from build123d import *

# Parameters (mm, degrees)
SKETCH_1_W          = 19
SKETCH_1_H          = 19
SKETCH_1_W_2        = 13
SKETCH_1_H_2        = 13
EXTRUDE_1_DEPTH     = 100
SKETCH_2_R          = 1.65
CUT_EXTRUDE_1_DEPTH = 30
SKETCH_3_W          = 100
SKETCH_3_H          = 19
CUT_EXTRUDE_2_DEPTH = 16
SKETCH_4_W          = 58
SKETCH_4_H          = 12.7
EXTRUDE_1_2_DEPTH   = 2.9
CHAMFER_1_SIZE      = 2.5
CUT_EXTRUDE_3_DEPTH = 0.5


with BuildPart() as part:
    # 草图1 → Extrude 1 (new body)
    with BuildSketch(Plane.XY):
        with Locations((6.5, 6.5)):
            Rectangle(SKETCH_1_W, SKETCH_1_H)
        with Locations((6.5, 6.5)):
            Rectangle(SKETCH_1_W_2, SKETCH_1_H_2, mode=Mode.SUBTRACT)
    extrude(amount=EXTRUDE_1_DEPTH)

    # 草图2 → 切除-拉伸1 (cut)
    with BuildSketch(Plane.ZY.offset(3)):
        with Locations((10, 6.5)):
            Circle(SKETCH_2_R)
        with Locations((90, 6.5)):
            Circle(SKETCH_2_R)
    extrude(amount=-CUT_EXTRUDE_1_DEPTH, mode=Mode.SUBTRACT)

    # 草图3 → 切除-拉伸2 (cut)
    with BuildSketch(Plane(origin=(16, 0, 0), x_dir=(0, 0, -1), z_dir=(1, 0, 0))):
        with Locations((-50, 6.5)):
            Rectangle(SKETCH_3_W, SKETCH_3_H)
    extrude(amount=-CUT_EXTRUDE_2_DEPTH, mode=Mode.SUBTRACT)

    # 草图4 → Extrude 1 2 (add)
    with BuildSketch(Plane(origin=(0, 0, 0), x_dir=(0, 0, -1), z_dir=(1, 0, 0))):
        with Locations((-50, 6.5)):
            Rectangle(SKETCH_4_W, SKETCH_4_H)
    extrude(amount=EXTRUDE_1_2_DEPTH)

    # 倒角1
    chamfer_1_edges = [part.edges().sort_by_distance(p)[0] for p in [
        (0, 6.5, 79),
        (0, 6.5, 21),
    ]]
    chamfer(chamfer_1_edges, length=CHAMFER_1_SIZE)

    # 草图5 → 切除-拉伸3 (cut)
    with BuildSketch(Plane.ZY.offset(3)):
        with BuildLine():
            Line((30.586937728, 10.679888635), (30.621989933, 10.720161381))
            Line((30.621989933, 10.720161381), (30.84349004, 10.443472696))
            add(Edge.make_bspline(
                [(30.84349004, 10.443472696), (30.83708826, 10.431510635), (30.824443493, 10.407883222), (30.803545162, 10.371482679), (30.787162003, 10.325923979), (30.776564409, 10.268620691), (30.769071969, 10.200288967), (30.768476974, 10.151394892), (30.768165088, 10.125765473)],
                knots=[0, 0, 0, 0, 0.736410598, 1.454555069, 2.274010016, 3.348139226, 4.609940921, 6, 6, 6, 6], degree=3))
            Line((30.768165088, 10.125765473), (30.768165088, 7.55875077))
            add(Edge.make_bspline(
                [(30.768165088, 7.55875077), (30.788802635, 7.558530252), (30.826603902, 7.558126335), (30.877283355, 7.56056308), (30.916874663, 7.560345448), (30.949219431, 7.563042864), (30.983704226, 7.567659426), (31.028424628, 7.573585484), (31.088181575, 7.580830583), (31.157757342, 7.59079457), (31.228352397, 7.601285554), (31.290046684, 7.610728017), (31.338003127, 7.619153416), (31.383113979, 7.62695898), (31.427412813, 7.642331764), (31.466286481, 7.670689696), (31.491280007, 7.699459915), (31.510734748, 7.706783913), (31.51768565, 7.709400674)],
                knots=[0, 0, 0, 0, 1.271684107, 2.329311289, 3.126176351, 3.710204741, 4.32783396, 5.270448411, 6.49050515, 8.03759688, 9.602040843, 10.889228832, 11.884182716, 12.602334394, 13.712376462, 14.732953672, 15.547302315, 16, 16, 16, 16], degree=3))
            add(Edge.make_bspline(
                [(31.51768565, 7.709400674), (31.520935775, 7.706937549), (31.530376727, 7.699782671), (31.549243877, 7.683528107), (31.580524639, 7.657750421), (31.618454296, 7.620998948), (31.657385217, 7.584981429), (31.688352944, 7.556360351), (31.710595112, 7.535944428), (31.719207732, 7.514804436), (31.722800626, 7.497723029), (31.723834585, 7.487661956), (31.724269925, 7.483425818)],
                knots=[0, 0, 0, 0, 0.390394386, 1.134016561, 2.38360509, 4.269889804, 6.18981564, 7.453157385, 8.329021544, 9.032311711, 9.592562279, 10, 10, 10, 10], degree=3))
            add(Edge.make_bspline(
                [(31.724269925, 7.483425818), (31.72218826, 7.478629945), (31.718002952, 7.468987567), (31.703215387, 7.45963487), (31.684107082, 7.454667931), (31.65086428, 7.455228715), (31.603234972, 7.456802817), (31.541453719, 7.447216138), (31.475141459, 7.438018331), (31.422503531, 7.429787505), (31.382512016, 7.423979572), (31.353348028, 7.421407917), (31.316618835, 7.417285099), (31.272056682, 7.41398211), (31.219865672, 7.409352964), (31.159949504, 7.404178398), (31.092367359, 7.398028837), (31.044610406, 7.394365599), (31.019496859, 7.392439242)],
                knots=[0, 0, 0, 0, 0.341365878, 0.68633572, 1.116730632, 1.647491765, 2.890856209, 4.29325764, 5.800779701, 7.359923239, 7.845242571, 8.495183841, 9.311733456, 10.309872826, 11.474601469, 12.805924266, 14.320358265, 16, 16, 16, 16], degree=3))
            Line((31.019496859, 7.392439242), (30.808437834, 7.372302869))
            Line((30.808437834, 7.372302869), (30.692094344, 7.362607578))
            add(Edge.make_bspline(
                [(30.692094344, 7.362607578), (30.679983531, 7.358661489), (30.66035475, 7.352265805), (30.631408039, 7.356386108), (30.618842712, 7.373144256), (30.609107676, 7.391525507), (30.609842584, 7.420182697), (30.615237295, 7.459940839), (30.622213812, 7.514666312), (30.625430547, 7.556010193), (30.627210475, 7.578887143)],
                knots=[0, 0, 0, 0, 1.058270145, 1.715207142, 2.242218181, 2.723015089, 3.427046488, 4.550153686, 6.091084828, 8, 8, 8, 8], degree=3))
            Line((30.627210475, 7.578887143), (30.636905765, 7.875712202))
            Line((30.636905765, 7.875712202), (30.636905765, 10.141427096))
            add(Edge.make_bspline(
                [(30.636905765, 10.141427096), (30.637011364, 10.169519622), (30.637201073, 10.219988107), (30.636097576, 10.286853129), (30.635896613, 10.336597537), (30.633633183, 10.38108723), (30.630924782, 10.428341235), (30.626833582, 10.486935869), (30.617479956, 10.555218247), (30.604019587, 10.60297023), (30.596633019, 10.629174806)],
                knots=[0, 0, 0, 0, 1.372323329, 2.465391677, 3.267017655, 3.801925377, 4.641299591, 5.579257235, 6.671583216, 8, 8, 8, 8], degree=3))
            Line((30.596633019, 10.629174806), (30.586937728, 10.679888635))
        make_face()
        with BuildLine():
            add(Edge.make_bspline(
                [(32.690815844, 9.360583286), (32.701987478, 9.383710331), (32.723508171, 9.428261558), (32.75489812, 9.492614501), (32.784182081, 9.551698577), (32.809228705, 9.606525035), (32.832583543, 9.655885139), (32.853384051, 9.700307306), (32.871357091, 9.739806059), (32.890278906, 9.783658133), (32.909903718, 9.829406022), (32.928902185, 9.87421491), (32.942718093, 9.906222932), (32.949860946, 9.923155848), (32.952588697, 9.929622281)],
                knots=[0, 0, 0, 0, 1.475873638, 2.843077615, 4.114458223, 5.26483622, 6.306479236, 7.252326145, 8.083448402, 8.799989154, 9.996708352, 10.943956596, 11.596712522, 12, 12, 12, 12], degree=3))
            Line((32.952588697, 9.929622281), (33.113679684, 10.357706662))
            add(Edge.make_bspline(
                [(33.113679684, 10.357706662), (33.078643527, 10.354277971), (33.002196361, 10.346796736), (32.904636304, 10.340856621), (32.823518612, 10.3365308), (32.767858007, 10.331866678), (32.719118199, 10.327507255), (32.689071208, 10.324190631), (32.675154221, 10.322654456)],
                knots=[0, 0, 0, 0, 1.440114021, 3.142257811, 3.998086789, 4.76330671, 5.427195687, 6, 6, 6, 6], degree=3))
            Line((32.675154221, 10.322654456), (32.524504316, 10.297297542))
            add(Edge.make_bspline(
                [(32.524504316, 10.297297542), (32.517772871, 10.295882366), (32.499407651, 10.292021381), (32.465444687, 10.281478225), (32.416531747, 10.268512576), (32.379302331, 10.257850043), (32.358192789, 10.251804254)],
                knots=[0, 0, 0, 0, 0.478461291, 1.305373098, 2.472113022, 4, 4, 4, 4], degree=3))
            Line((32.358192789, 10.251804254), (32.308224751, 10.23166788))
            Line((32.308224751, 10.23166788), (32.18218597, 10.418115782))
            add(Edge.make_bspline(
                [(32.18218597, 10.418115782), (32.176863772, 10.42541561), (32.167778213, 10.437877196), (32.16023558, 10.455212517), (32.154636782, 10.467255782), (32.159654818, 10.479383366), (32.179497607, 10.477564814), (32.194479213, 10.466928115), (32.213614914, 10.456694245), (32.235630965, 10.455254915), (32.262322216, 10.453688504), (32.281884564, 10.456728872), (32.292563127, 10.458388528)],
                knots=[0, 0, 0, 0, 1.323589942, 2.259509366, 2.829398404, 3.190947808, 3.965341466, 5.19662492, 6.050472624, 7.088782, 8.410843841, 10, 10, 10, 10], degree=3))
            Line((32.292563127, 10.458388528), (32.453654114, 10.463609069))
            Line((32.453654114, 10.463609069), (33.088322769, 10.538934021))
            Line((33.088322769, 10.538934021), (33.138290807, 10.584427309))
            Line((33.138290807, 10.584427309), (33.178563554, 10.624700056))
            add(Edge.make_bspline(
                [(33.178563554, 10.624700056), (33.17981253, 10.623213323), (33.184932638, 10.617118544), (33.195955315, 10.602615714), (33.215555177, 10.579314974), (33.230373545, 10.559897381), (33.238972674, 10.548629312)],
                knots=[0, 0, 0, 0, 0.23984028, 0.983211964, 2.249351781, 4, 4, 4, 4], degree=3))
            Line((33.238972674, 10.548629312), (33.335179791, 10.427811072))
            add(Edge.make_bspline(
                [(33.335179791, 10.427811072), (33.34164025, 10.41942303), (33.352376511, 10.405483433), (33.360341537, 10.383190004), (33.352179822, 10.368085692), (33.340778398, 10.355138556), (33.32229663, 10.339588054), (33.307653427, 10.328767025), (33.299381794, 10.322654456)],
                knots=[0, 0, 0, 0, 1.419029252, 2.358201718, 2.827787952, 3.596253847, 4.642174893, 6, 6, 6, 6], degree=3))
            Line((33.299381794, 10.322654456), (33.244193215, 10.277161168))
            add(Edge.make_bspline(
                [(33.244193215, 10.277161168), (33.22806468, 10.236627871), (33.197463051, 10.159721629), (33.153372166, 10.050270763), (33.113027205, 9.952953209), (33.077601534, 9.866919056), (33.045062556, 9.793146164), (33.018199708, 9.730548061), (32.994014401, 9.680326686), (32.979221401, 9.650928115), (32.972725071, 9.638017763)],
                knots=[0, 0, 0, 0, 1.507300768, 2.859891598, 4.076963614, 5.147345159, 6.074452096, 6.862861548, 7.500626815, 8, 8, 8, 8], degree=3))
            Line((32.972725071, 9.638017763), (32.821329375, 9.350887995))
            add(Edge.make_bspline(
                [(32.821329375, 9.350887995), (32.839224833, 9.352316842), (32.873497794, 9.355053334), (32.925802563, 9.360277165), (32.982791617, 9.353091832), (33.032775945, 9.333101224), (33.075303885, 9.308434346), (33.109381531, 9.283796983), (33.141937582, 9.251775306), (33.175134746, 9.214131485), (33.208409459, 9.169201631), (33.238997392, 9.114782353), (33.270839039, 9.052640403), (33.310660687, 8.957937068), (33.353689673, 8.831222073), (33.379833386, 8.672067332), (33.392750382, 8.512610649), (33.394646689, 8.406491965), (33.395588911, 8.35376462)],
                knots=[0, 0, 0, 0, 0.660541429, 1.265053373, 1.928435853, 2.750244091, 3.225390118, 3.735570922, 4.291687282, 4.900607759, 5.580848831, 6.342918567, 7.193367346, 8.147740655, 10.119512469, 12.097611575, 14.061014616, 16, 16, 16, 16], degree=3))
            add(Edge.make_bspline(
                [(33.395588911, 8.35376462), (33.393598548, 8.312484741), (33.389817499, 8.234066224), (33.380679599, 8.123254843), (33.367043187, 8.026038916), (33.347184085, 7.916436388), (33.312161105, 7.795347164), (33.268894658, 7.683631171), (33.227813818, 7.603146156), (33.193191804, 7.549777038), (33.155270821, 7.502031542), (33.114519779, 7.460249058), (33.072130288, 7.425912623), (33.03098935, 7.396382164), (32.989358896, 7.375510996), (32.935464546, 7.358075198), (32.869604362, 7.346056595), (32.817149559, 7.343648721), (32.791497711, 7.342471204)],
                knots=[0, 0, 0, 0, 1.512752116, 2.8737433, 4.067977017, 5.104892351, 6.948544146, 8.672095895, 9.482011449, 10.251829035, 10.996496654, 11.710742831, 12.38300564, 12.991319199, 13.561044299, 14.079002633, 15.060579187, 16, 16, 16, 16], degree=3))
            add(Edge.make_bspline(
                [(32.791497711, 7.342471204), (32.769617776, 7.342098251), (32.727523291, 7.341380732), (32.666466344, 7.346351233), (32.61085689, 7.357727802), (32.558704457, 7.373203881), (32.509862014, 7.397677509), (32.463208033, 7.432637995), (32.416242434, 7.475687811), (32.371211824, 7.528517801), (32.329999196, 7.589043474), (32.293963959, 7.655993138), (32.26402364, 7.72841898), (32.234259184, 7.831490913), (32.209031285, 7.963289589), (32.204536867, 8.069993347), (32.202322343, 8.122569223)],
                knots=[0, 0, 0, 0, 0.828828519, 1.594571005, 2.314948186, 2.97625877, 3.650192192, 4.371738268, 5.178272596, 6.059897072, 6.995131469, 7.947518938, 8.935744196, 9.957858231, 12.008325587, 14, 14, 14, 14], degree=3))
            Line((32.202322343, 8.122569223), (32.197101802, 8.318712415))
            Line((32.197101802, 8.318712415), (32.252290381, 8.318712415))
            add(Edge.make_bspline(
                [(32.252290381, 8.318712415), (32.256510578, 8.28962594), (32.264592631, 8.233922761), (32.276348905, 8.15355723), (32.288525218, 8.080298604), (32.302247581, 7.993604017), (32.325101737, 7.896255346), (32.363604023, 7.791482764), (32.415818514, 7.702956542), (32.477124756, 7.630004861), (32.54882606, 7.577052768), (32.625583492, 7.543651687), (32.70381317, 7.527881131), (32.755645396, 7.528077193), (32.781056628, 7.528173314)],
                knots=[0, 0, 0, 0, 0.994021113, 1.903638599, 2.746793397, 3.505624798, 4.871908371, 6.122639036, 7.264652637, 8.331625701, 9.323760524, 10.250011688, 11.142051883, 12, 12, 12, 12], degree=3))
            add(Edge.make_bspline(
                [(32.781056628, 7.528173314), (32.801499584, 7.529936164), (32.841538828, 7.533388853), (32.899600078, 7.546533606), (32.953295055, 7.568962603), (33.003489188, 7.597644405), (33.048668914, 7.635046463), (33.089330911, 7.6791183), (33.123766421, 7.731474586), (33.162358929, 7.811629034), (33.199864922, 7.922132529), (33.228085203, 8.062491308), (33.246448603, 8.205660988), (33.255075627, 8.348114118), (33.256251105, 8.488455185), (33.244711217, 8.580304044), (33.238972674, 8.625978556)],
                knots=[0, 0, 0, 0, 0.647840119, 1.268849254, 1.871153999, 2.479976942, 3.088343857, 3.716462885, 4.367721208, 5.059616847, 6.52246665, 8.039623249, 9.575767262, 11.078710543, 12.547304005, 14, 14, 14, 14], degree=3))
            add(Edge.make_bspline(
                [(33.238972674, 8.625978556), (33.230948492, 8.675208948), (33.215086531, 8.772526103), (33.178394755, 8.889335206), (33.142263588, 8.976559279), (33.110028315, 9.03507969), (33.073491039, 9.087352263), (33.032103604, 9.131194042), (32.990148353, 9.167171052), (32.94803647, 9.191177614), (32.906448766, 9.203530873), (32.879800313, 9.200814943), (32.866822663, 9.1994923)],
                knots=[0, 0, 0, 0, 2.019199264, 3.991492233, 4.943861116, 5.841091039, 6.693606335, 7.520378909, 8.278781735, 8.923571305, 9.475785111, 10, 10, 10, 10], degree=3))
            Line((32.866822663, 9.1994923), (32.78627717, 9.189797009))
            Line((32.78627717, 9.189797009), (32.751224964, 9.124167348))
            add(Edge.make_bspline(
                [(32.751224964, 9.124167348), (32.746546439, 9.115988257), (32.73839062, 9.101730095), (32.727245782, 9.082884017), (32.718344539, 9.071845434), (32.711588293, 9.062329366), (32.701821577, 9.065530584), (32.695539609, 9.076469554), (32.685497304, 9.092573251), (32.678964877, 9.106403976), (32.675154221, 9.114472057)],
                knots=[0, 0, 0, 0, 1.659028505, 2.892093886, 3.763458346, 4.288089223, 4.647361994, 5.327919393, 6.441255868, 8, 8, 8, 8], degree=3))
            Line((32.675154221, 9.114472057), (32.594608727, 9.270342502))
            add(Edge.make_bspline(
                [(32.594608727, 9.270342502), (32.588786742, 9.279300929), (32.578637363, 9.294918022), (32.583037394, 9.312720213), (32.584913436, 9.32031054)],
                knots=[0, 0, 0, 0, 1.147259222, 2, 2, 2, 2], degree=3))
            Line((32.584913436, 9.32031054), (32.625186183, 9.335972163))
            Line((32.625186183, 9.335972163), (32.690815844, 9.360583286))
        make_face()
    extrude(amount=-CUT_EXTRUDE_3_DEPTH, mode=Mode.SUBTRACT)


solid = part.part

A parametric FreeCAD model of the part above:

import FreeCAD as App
import Part
import Sketcher

V = App.Vector


def edges_at(feature, points):
    """Names of the edges that pass closest to the given points."""
    edges = feature.Shape.Edges
    near = lambda p: min(range(len(edges)), key=lambda i: edges[i].distToShape(Part.Vertex(*p))[0])
    return sorted({f"Edge{near(p) + 1}" for p in points})


def add_polygon(sketch, points):
    """Adds a closed chain of lines whose ends are joined by coincident constraints."""
    first, n = sketch.GeometryCount, len(points)
    for a, b in zip(points, points[1:] + points[:1]):
        sketch.addGeometry(Part.LineSegment(App.Vector(*a, 0), App.Vector(*b, 0)), False)
    for i in range(n):
        sketch.addConstraint(Sketcher.Constraint("Coincident", first + i, 2, first + (i + 1) % n, 1))

doc = App.newDocument("Part")
params = doc.addObject("Spreadsheet::Sheet", "Params")
for row, (alias, value) in enumerate([
    ("sketch1_width", "19 mm"),
    ("sketch1_width2", "13 mm"),
    ("pad1_length", "100 mm"),
    ("sketch2_diameter", "3.3 mm"),
    ("pocket1_length", "30 mm"),
    ("sketch3_width", "19 mm"),
    ("sketch3_height", "100 mm"),
    ("pocket2_length", "16 mm"),
    ("sketch4_height", "58 mm"),
    ("sketch4_width", "12.7 mm"),
    ("pad2_length", "2.9 mm"),
    ("chamfer_size", "2.5 mm"),
    ("pocket3_length", "0.5 mm"),
], start=1):
    params.set(f"A{row}", alias)
    params.set(f"B{row}", "=" + value)
    params.setAlias(f"B{row}", alias)

body = doc.addObject("PartDesign::Body", "Body")

# Sketch on XY plane
sketch1 = body.newObject("Sketcher::SketchObject", "Sketch")
sketch1.AttachmentSupport = (doc.getObject("XY_Plane"), [""])
sketch1.MapMode = "FlatFace"
add_polygon(sketch1, [(-3, 16), (-3, -3), (16, -3), (16, 16)])  # lines 0-3
add_polygon(sketch1, [(13, 0), (0, 0), (0, 13), (13, 13)])  # lines 4-7
sketch1.addConstraint(Sketcher.Constraint("Vertical", 0))
sketch1.addConstraint(Sketcher.Constraint("Horizontal", 1))
sketch1.addConstraint(Sketcher.Constraint("Vertical", 2))
sketch1.addConstraint(Sketcher.Constraint("Horizontal", 3))
sketch1.addConstraint(Sketcher.Constraint("Horizontal", 4))
sketch1.addConstraint(Sketcher.Constraint("Vertical", 5))
sketch1.addConstraint(Sketcher.Constraint("Horizontal", 6))
sketch1.addConstraint(Sketcher.Constraint("Vertical", 7))
sketch1.addConstraint(Sketcher.Constraint("Coincident", 4, 2, -1, 1))
sketch1.addConstraint(Sketcher.Constraint("Equal", 3, 0))
sketch1.addConstraint(Sketcher.Constraint("Equal", 6, 5))
sketch1.addConstraint(Sketcher.Constraint("DistanceX", 1, 1, 1, 2, 19.0))
sketch1.addConstraint(Sketcher.Constraint("DistanceX", 4, 2, 4, 1, 13.0))
sketch1.addConstraint(Sketcher.Constraint("DistanceX", 0, 2, -1, 1, 3.0))
sketch1.addConstraint(Sketcher.Constraint("DistanceY", 0, 2, -1, 1, 3.0))
sketch1.setExpression("Constraints[19]", "Params.sketch1_width")
sketch1.setExpression("Constraints[20]", "Params.sketch1_width2")
pad1 = body.newObject("PartDesign::Pad", "Pad")
pad1.Profile = sketch1
pad1.setExpression("Length", "Params.pad1_length")

# Sketch on YZ plane
sketch2 = body.newObject("Sketcher::SketchObject", "Sketch001")
sketch2.AttachmentSupport = (doc.getObject("YZ_Plane"), [""])
sketch2.MapMode = "FlatFace"
sketch2.AttachmentOffset = App.Placement(V(0, 0, -3), App.Rotation())
sketch2.addGeometry(Part.Circle(V(6.5, 10, 0), V(0, 0, 1), 1.6), False)
sketch2.addGeometry(Part.Circle(V(6.5, 90, 0), V(0, 0, 1), 1.6), False)
sketch2.addConstraint(Sketcher.Constraint("Equal", 0, 1))
sketch2.addConstraint(Sketcher.Constraint("Vertical", 0, 3, 1, 3))
sketch2.addConstraint(Sketcher.Constraint("Diameter", 0, 3.3))
sketch2.addConstraint(Sketcher.Constraint("DistanceY", -1, 1, 0, 3, 10.0))
sketch2.addConstraint(Sketcher.Constraint("DistanceY", -1, 1, 1, 3, 90.0))
sketch2.addConstraint(Sketcher.Constraint("DistanceX", -1, 1, 0, 3, 6.5))
sketch2.setExpression("Constraints[2]", "Params.sketch2_diameter")
pocket1 = body.newObject("PartDesign::Pocket", "Pocket")
pocket1.Profile = sketch2
pocket1.setExpression("Length", "Params.pocket1_length")
pocket1.Reversed = True

# Sketch on YZ plane
sketch3 = body.newObject("Sketcher::SketchObject", "Sketch002")
sketch3.AttachmentSupport = (doc.getObject("YZ_Plane"), [""])
sketch3.MapMode = "FlatFace"
sketch3.AttachmentOffset = App.Placement(V(0, 0, 16), App.Rotation())
add_polygon(sketch3, [(16, 100), (-3, 100), (-3, 0), (16, 0)])  # lines 0-3
sketch3.addConstraint(Sketcher.Constraint("Horizontal", 0))
sketch3.addConstraint(Sketcher.Constraint("Vertical", 1))
sketch3.addConstraint(Sketcher.Constraint("Horizontal", 2))
sketch3.addConstraint(Sketcher.Constraint("Vertical", 3))
sketch3.addConstraint(Sketcher.Constraint("PointOnObject", 1, 2, -1))
sketch3.addConstraint(Sketcher.Constraint("DistanceX", 0, 2, 0, 1, 19.0))
sketch3.addConstraint(Sketcher.Constraint("DistanceY", 1, 2, 1, 1, 100.0))
sketch3.addConstraint(Sketcher.Constraint("DistanceX", 0, 2, -1, 1, 3.0))
sketch3.setExpression("Constraints[9]", "Params.sketch3_width")
sketch3.setExpression("Constraints[10]", "Params.sketch3_height")
pocket2 = body.newObject("PartDesign::Pocket", "Pocket001")
pocket2.Profile = sketch3
pocket2.setExpression("Length", "Params.pocket2_length")

# Sketch on YZ plane
sketch4 = body.newObject("Sketcher::SketchObject", "Sketch003")
sketch4.AttachmentSupport = (doc.getObject("YZ_Plane"), [""])
sketch4.MapMode = "FlatFace"
add_polygon(sketch4, [(13, 79), (0, 79), (0, 21), (13, 21)])  # lines 0-3
sketch4.addConstraint(Sketcher.Constraint("Horizontal", 0))
sketch4.addConstraint(Sketcher.Constraint("Vertical", 1))
sketch4.addConstraint(Sketcher.Constraint("Horizontal", 2))
sketch4.addConstraint(Sketcher.Constraint("Vertical", 3))
sketch4.addConstraint(Sketcher.Constraint("DistanceY", 1, 2, 1, 1, 58.0))
sketch4.addConstraint(Sketcher.Constraint("DistanceX", 0, 2, 0, 1, 12.7))
sketch4.addConstraint(Sketcher.Constraint("DistanceY", -1, 1, 0, 2, 79.0))
sketch4.addConstraint(Sketcher.Constraint("DistanceX", -1, 1, 0, 2, 0.15))
sketch4.setExpression("Constraints[8]", "Params.sketch4_height")
sketch4.setExpression("Constraints[9]", "Params.sketch4_width")
pad2 = body.newObject("PartDesign::Pad", "Pad001")
pad2.Profile = sketch4
pad2.setExpression("Length", "Params.pad2_length")
doc.recompute()

chamfer = body.newObject("PartDesign::Chamfer", "Chamfer")
chamfer.Base = (pad2, edges_at(pad2, [(0, 6.5, 79), (0, 6.5, 21)]))
chamfer.setExpression("Size", "Params.chamfer_size")

# Sketch on YZ plane
sketch5 = body.newObject("Sketcher::SketchObject", "Sketch004")
sketch5.AttachmentSupport = (doc.getObject("YZ_Plane"), [""])
sketch5.MapMode = "FlatFace"
sketch5.AttachmentOffset = App.Placement(V(0, 0, -3), App.Rotation())
sketch5.addGeometry(Part.LineSegment(V(10.720161, 30.62199, 0), V(10.679889, 30.586938, 0)), False)
sketch5.addGeometry(Part.LineSegment(V(10.679889, 30.586938, 0), V(10.629175, 30.596633, 0)), False)
sketch5.addGeometry(Part.BSplineCurve([V(10.141427, 30.636906, 0), V(10.16952, 30.637011, 0), V(10.219988, 30.637201, 0), V(10.286853, 30.636098, 0), V(10.336598, 30.635897, 0), V(10.381087, 30.633633, 0), V(10.428341, 30.630925, 0), V(10.486936, 30.626834, 0), V(10.555218, 30.61748, 0), V(10.60297, 30.60402, 0), V(10.629175, 30.596633, 0)], [4, 1, 1, 1, 1, 1, 1, 1, 4], [0, 1.372323329, 2.465391677, 3.267017655, 3.801925377, 4.641299591, 5.579257235, 6.671583216, 8], False, 3, [1, 1, 1, 1, 1, 1, 1, 1, 1, 1, 1], False), False)
sketch5.addGeometry(Part.LineSegment(V(10.141427, 30.636906, 0), V(7.875712, 30.636906, 0)), False)
sketch5.addGeometry(Part.LineSegment(V(7.875712, 30.636906, 0), V(7.578887, 30.62721, 0)), False)
sketch5.addGeometry(Part.BSplineCurve([V(7.362608, 30.692094, 0), V(7.358661, 30.679984, 0), V(7.352266, 30.660355, 0), V(7.356386, 30.631408, 0), V(7.373144, 30.618843, 0), V(7.391526, 30.609108, 0), V(7.420183, 30.609843, 0), V(7.459941, 30.615237, 0), V(7.514666, 30.622214, 0), V(7.55601, 30.625431, 0), V(7.578887, 30.62721, 0)], [4, 1, 1, 1, 1, 1, 1, 1, 4], [0, 1.058270145, 1.715207142, 2.242218181, 2.723015089, 3.427046488, 4.550153686, 6.091084828, 8], False, 3, [1, 1, 1, 1, 1, 1, 1, 1, 1, 1, 1], False), False)
sketch5.addGeometry(Part.LineSegment(V(7.362608, 30.692094, 0), V(7.372303, 30.808438, 0)), False)
sketch5.addGeometry(Part.LineSegment(V(7.372303, 30.808438, 0), V(7.392439, 31.019497, 0)), False)
sketch5.addGeometry(Part.BSplineCurve([V(7.483426, 31.72427, 0), V(7.47863, 31.722188, 0), V(7.468988, 31.718003, 0), V(7.459635, 31.703215, 0), V(7.454668, 31.684107, 0), V(7.455229, 31.650864, 0), V(7.456803, 31.603235, 0), V(7.447216, 31.541454, 0), V(7.438018, 31.475141, 0), V(7.429788, 31.422504, 0), V(7.42398, 31.382512, 0), V(7.421408, 31.353348, 0), V(7.417285, 31.316619, 0), V(7.413982, 31.272057, 0), V(7.409353, 31.219866, 0), V(7.404178, 31.15995, 0), V(7.398029, 31.092367, 0), V(7.394366, 31.04461, 0), V(7.392439, 31.019497, 0)], [4, 1, 1, 1, 1, 1, 1, 1, 1, 1, 1, 1, 1, 1, 1, 1, 4], [0, 0.341365878, 0.68633572, 1.116730632, 1.647491765, 2.890856209, 4.29325764, 5.800779701, 7.359923239, 7.845242571, 8.495183841, 9.311733456, 10.309872826, 11.474601469, 12.805924266, 14.320358265, 16], False, 3, [1, 1, 1, 1, 1, 1, 1, 1, 1, 1, 1, 1, 1, 1, 1, 1, 1, 1, 1], False), False)
sketch5.addGeometry(Part.BSplineCurve([V(7.709401, 31.517686, 0), V(7.706938, 31.520936, 0), V(7.699783, 31.530377, 0), V(7.683528, 31.549244, 0), V(7.65775, 31.580525, 0), V(7.620999, 31.618454, 0), V(7.584981, 31.657385, 0), V(7.55636, 31.688353, 0), V(7.535944, 31.710595, 0), V(7.514804, 31.719208, 0), V(7.497723, 31.722801, 0), V(7.487662, 31.723835, 0), V(7.483426, 31.72427, 0)], [4, 1, 1, 1, 1, 1, 1, 1, 1, 1, 4], [0, 0.390394386, 1.134016561, 2.38360509, 4.269889804, 6.18981564, 7.453157385, 8.329021544, 9.032311711, 9.592562279, 10], False, 3, [1, 1, 1, 1, 1, 1, 1, 1, 1, 1, 1, 1, 1], False), False)
sketch5.addGeometry(Part.BSplineCurve([V(7.558751, 30.768165, 0), V(7.55853, 30.788803, 0), V(7.558126, 30.826604, 0), V(7.560563, 30.877283, 0), V(7.560345, 30.916875, 0), V(7.563043, 30.949219, 0), V(7.567659, 30.983704, 0), V(7.573585, 31.028425, 0), V(7.580831, 31.088182, 0), V(7.590795, 31.157757, 0), V(7.601286, 31.228352, 0), V(7.610728, 31.290047, 0), V(7.619153, 31.338003, 0), V(7.626959, 31.383114, 0), V(7.642332, 31.427413, 0), V(7.67069, 31.466286, 0), V(7.69946, 31.49128, 0), V(7.706784, 31.510735, 0), V(7.709401, 31.517686, 0)], [4, 1, 1, 1, 1, 1, 1, 1, 1, 1, 1, 1, 1, 1, 1, 1, 4], [0, 1.271684107, 2.329311289, 3.126176351, 3.710204741, 4.32783396, 5.270448411, 6.49050515, 8.03759688, 9.602040843, 10.889228832, 11.884182716, 12.602334394, 13.712376462, 14.732953672, 15.547302315, 16], False, 3, [1, 1, 1, 1, 1, 1, 1, 1, 1, 1, 1, 1, 1, 1, 1, 1, 1, 1, 1], False), False)
sketch5.addGeometry(Part.LineSegment(V(7.558751, 30.768165, 0), V(10.125765, 30.768165, 0)), False)
sketch5.addGeometry(Part.BSplineCurve([V(10.443473, 30.84349, 0), V(10.431511, 30.837088, 0), V(10.407883, 30.824443, 0), V(10.371483, 30.803545, 0), V(10.325924, 30.787162, 0), V(10.268621, 30.776564, 0), V(10.200289, 30.769072, 0), V(10.151395, 30.768477, 0), V(10.125765, 30.768165, 0)], [4, 1, 1, 1, 1, 1, 4], [0, 0.736410598, 1.454555069, 2.274010016, 3.348139226, 4.609940921, 6], False, 3, [1, 1, 1, 1, 1, 1, 1, 1, 1], False), False)
sketch5.addGeometry(Part.LineSegment(V(10.443473, 30.84349, 0), V(10.720161, 30.62199, 0)), False)
sketch5.addGeometry(Part.BSplineCurve([V(9.360583, 32.690816, 0), V(9.38371, 32.701987, 0), V(9.428262, 32.723508, 0), V(9.492615, 32.754898, 0), V(9.551699, 32.784182, 0), V(9.606525, 32.809229, 0), V(9.655885, 32.832584, 0), V(9.700307, 32.853384, 0), V(9.739806, 32.871357, 0), V(9.783658, 32.890279, 0), V(9.829406, 32.909904, 0), V(9.874215, 32.928902, 0), V(9.906223, 32.942718, 0), V(9.923156, 32.949861, 0), V(9.929622, 32.952589, 0)], [4, 1, 1, 1, 1, 1, 1, 1, 1, 1, 1, 1, 4], [0, 1.475873638, 2.843077615, 4.114458223, 5.26483622, 6.306479236, 7.252326145, 8.083448402, 8.799989154, 9.996708352, 10.943956596, 11.596712522, 12], False, 3, [1, 1, 1, 1, 1, 1, 1, 1, 1, 1, 1, 1, 1, 1, 1], False), False)
sketch5.addGeometry(Part.LineSegment(V(9.360583, 32.690816, 0), V(9.335972, 32.625186, 0)), False)
sketch5.addGeometry(Part.LineSegment(V(9.335972, 32.625186, 0), V(9.320311, 32.584913, 0)), False)
sketch5.addGeometry(Part.BSplineCurve([V(9.270343, 32.594609, 0), V(9.279301, 32.588787, 0), V(9.294918, 32.578637, 0), V(9.31272, 32.583037, 0), V(9.320311, 32.584913, 0)], [4, 1, 4], [0, 1.147259222, 2], False, 3, [1, 1, 1, 1, 1], False), False)
sketch5.addGeometry(Part.LineSegment(V(9.270343, 32.594609, 0), V(9.114472, 32.675154, 0)), False)
sketch5.addGeometry(Part.BSplineCurve([V(9.124167, 32.751225, 0), V(9.115988, 32.746546, 0), V(9.10173, 32.738391, 0), V(9.082884, 32.727246, 0), V(9.071845, 32.718345, 0), V(9.062329, 32.711588, 0), V(9.065531, 32.701822, 0), V(9.07647, 32.69554, 0), V(9.092573, 32.685497, 0), V(9.106404, 32.678965, 0), V(9.114472, 32.675154, 0)], [4, 1, 1, 1, 1, 1, 1, 1, 4], [0, 1.659028505, 2.892093886, 3.763458346, 4.288089223, 4.647361994, 5.327919393, 6.441255868, 8], False, 3, [1, 1, 1, 1, 1, 1, 1, 1, 1, 1, 1], False), False)
sketch5.addGeometry(Part.LineSegment(V(9.124167, 32.751225, 0), V(9.189797, 32.786277, 0)), False)
sketch5.addGeometry(Part.LineSegment(V(9.189797, 32.786277, 0), V(9.199492, 32.866823, 0)), False)
sketch5.addGeometry(Part.BSplineCurve([V(8.625979, 33.238973, 0), V(8.675209, 33.230948, 0), V(8.772526, 33.215087, 0), V(8.889335, 33.178395, 0), V(8.976559, 33.142264, 0), V(9.03508, 33.110028, 0), V(9.087352, 33.073491, 0), V(9.131194, 33.032104, 0), V(9.167171, 32.990148, 0), V(9.191178, 32.948036, 0), V(9.203531, 32.906449, 0), V(9.200815, 32.8798, 0), V(9.199492, 32.866823, 0)], [4, 1, 1, 1, 1, 1, 1, 1, 1, 1, 4], [0, 2.019199264, 3.991492233, 4.943861116, 5.841091039, 6.693606335, 7.520378909, 8.278781735, 8.923571305, 9.475785111, 10], False, 3, [1, 1, 1, 1, 1, 1, 1, 1, 1, 1, 1, 1, 1], False), False)
sketch5.addGeometry(Part.BSplineCurve([V(7.528173, 32.781057, 0), V(7.529936, 32.8015, 0), V(7.533389, 32.841539, 0), V(7.546534, 32.8996, 0), V(7.568963, 32.953295, 0), V(7.597644, 33.003489, 0), V(7.635046, 33.048669, 0), V(7.679118, 33.089331, 0), V(7.731475, 33.123766, 0), V(7.811629, 33.162359, 0), V(7.922133, 33.199865, 0), V(8.062491, 33.228085, 0), V(8.205661, 33.246449, 0), V(8.348114, 33.255076, 0), V(8.488455, 33.256251, 0), V(8.580304, 33.244711, 0), V(8.625979, 33.238973, 0)], [4, 1, 1, 1, 1, 1, 1, 1, 1, 1, 1, 1, 1, 1, 4], [0, 0.647840119, 1.268849254, 1.871153999, 2.479976942, 3.088343857, 3.716462885, 4.367721208, 5.059616847, 6.52246665, 8.039623249, 9.575767262, 11.078710543, 12.547304005, 14], False, 3, [1, 1, 1, 1, 1, 1, 1, 1, 1, 1, 1, 1, 1, 1, 1, 1, 1], False), False)
sketch5.addGeometry(Part.BSplineCurve([V(8.318712, 32.25229, 0), V(8.289626, 32.256511, 0), V(8.233923, 32.264593, 0), V(8.153557, 32.276349, 0), V(8.080299, 32.288525, 0), V(7.993604, 32.302248, 0), V(7.896255, 32.325102, 0), V(7.791483, 32.363604, 0), V(7.702957, 32.415819, 0), V(7.630005, 32.477125, 0), V(7.577053, 32.548826, 0), V(7.543652, 32.625583, 0), V(7.527881, 32.703813, 0), V(7.528077, 32.755645, 0), V(7.528173, 32.781057, 0)], [4, 1, 1, 1, 1, 1, 1, 1, 1, 1, 1, 1, 4], [0, 0.994021113, 1.903638599, 2.746793397, 3.505624798, 4.871908371, 6.122639036, 7.264652637, 8.331625701, 9.323760524, 10.250011688, 11.142051883, 12], False, 3, [1, 1, 1, 1, 1, 1, 1, 1, 1, 1, 1, 1, 1, 1, 1], False), False)
sketch5.addGeometry(Part.LineSegment(V(8.318712, 32.25229, 0), V(8.318712, 32.197102, 0)), False)
sketch5.addGeometry(Part.LineSegment(V(8.318712, 32.197102, 0), V(8.122569, 32.202322, 0)), False)
sketch5.addGeometry(Part.BSplineCurve([V(7.342471, 32.791498, 0), V(7.342098, 32.769618, 0), V(7.341381, 32.727523, 0), V(7.346351, 32.666466, 0), V(7.357728, 32.610857, 0), V(7.373204, 32.558704, 0), V(7.397678, 32.509862, 0), V(7.432638, 32.463208, 0), V(7.475688, 32.416242, 0), V(7.528518, 32.371212, 0), V(7.589043, 32.329999, 0), V(7.655993, 32.293964, 0), V(7.728419, 32.264024, 0), V(7.831491, 32.234259, 0), V(7.96329, 32.209031, 0), V(8.069993, 32.204537, 0), V(8.122569, 32.202322, 0)], [4, 1, 1, 1, 1, 1, 1, 1, 1, 1, 1, 1, 1, 1, 4], [0, 0.828828519, 1.594571005, 2.314948186, 2.97625877, 3.650192192, 4.371738268, 5.178272596, 6.059897072, 6.995131469, 7.947518938, 8.935744196, 9.957858231, 12.008325587, 14], False, 3, [1, 1, 1, 1, 1, 1, 1, 1, 1, 1, 1, 1, 1, 1, 1, 1, 1], False), False)
sketch5.addGeometry(Part.BSplineCurve([V(8.353765, 33.395589, 0), V(8.312485, 33.393599, 0), V(8.234066, 33.389817, 0), V(8.123255, 33.38068, 0), V(8.026039, 33.367043, 0), V(7.916436, 33.347184, 0), V(7.795347, 33.312161, 0), V(7.683631, 33.268895, 0), V(7.603146, 33.227814, 0), V(7.549777, 33.193192, 0), V(7.502032, 33.155271, 0), V(7.460249, 33.11452, 0), V(7.425913, 33.07213, 0), V(7.396382, 33.030989, 0), V(7.375511, 32.989359, 0), V(7.358075, 32.935465, 0), V(7.346057, 32.869604, 0), V(7.343649, 32.81715, 0), V(7.342471, 32.791498, 0)], [4, 1, 1, 1, 1, 1, 1, 1, 1, 1, 1, 1, 1, 1, 1, 1, 4], [0, 1.512752116, 2.8737433, 4.067977017, 5.104892351, 6.948544146, 8.672095895, 9.482011449, 10.251829035, 10.996496654, 11.710742831, 12.38300564, 12.991319199, 13.561044299, 14.079002633, 15.060579187, 16], False, 3, [1, 1, 1, 1, 1, 1, 1, 1, 1, 1, 1, 1, 1, 1, 1, 1, 1, 1, 1], False), False)
sketch5.addGeometry(Part.BSplineCurve([V(9.350888, 32.821329, 0), V(9.352317, 32.839225, 0), V(9.355053, 32.873498, 0), V(9.360277, 32.925803, 0), V(9.353092, 32.982792, 0), V(9.333101, 33.032776, 0), V(9.308434, 33.075304, 0), V(9.283797, 33.109382, 0), V(9.251775, 33.141938, 0), V(9.214131, 33.175135, 0), V(9.169202, 33.208409, 0), V(9.114782, 33.238997, 0), V(9.05264, 33.270839, 0), V(8.957937, 33.310661, 0), V(8.831222, 33.35369, 0), V(8.672067, 33.379833, 0), V(8.512611, 33.39275, 0), V(8.406492, 33.394647, 0), V(8.353765, 33.395589, 0)], [4, 1, 1, 1, 1, 1, 1, 1, 1, 1, 1, 1, 1, 1, 1, 1, 4], [0, 0.660541429, 1.265053373, 1.928435853, 2.750244091, 3.225390118, 3.735570922, 4.291687282, 4.900607759, 5.580848831, 6.342918567, 7.193367346, 8.147740655, 10.119512469, 12.097611575, 14.061014616, 16], False, 3, [1, 1, 1, 1, 1, 1, 1, 1, 1, 1, 1, 1, 1, 1, 1, 1, 1, 1, 1], False), False)
sketch5.addGeometry(Part.LineSegment(V(9.350888, 32.821329, 0), V(9.638018, 32.972725, 0)), False)
sketch5.addGeometry(Part.BSplineCurve([V(10.277161, 33.244193, 0), V(10.236628, 33.228065, 0), V(10.159722, 33.197463, 0), V(10.050271, 33.153372, 0), V(9.952953, 33.113027, 0), V(9.866919, 33.077602, 0), V(9.793146, 33.045063, 0), V(9.730548, 33.0182, 0), V(9.680327, 32.994014, 0), V(9.650928, 32.979221, 0), V(9.638018, 32.972725, 0)], [4, 1, 1, 1, 1, 1, 1, 1, 4], [0, 1.507300768, 2.859891598, 4.076963614, 5.147345159, 6.074452096, 6.862861548, 7.500626815, 8], False, 3, [1, 1, 1, 1, 1, 1, 1, 1, 1, 1, 1], False), False)
sketch5.addGeometry(Part.LineSegment(V(10.277161, 33.244193, 0), V(10.322654, 33.299382, 0)), False)
sketch5.addGeometry(Part.BSplineCurve([V(10.427811, 33.33518, 0), V(10.419423, 33.34164, 0), V(10.405483, 33.352377, 0), V(10.38319, 33.360342, 0), V(10.368086, 33.35218, 0), V(10.355139, 33.340778, 0), V(10.339588, 33.322297, 0), V(10.328767, 33.307653, 0), V(10.322654, 33.299382, 0)], [4, 1, 1, 1, 1, 1, 4], [0, 1.419029252, 2.358201718, 2.827787952, 3.596253847, 4.642174893, 6], False, 3, [1, 1, 1, 1, 1, 1, 1, 1, 1], False), False)
sketch5.addGeometry(Part.LineSegment(V(10.427811, 33.33518, 0), V(10.548629, 33.238973, 0)), False)
sketch5.addGeometry(Part.BSplineCurve([V(10.6247, 33.178564, 0), V(10.623213, 33.179813, 0), V(10.617119, 33.184933, 0), V(10.602616, 33.195955, 0), V(10.579315, 33.215555, 0), V(10.559897, 33.230374, 0), V(10.548629, 33.238973, 0)], [4, 1, 1, 1, 4], [0, 0.23984028, 0.983211964, 2.249351781, 4], False, 3, [1, 1, 1, 1, 1, 1, 1], False), False)
sketch5.addGeometry(Part.LineSegment(V(10.6247, 33.178564, 0), V(10.584427, 33.138291, 0)), False)
sketch5.addGeometry(Part.LineSegment(V(10.584427, 33.138291, 0), V(10.538934, 33.088323, 0)), False)
sketch5.addGeometry(Part.LineSegment(V(10.538934, 33.088323, 0), V(10.463609, 32.453654, 0)), False)
sketch5.addGeometry(Part.LineSegment(V(10.463609, 32.453654, 0), V(10.458389, 32.292563, 0)), False)
sketch5.addGeometry(Part.BSplineCurve([V(10.418116, 32.182186, 0), V(10.425416, 32.176864, 0), V(10.437877, 32.167778, 0), V(10.455213, 32.160236, 0), V(10.467256, 32.154637, 0), V(10.479383, 32.159655, 0), V(10.477565, 32.179498, 0), V(10.466928, 32.194479, 0), V(10.456694, 32.213615, 0), V(10.455255, 32.235631, 0), V(10.453689, 32.262322, 0), V(10.456729, 32.281885, 0), V(10.458389, 32.292563, 0)], [4, 1, 1, 1, 1, 1, 1, 1, 1, 1, 4], [0, 1.323589942, 2.259509366, 2.829398404, 3.190947808, 3.965341466, 5.19662492, 6.050472624, 7.088782, 8.410843841, 10], False, 3, [1, 1, 1, 1, 1, 1, 1, 1, 1, 1, 1, 1, 1], False), False)
sketch5.addGeometry(Part.LineSegment(V(10.418116, 32.182186, 0), V(10.231668, 32.308225, 0)), False)
sketch5.addGeometry(Part.LineSegment(V(10.231668, 32.308225, 0), V(10.251804, 32.358193, 0)), False)
sketch5.addGeometry(Part.BSplineCurve([V(10.297298, 32.524504, 0), V(10.295882, 32.517773, 0), V(10.292021, 32.499408, 0), V(10.281478, 32.465445, 0), V(10.268513, 32.416532, 0), V(10.25785, 32.379302, 0), V(10.251804, 32.358193, 0)], [4, 1, 1, 1, 4], [0, 0.478461291, 1.305373098, 2.472113022, 4], False, 3, [1, 1, 1, 1, 1, 1, 1], False), False)
sketch5.addGeometry(Part.LineSegment(V(10.297298, 32.524504, 0), V(10.322654, 32.675154, 0)), False)
sketch5.addGeometry(Part.BSplineCurve([V(10.357707, 33.11368, 0), V(10.354278, 33.078644, 0), V(10.346797, 33.002196, 0), V(10.340857, 32.904636, 0), V(10.336531, 32.823519, 0), V(10.331867, 32.767858, 0), V(10.327507, 32.719118, 0), V(10.324191, 32.689071, 0), V(10.322654, 32.675154, 0)], [4, 1, 1, 1, 1, 1, 4], [0, 1.440114021, 3.142257811, 3.998086789, 4.76330671, 5.427195687, 6], False, 3, [1, 1, 1, 1, 1, 1, 1, 1, 1], False), False)
sketch5.addGeometry(Part.LineSegment(V(10.357707, 33.11368, 0), V(9.929622, 32.952589, 0)), False)
sketch5.addConstraint(Sketcher.Constraint("Block", 2))
sketch5.addConstraint(Sketcher.Constraint("Block", 5))
sketch5.addConstraint(Sketcher.Constraint("Block", 8))
sketch5.addConstraint(Sketcher.Constraint("Block", 9))
sketch5.addConstraint(Sketcher.Constraint("Block", 10))
sketch5.addConstraint(Sketcher.Constraint("Block", 12))
sketch5.addConstraint(Sketcher.Constraint("Block", 14))
sketch5.addConstraint(Sketcher.Constraint("Block", 17))
sketch5.addConstraint(Sketcher.Constraint("Block", 19))
sketch5.addConstraint(Sketcher.Constraint("Block", 22))
sketch5.addConstraint(Sketcher.Constraint("Block", 23))
sketch5.addConstraint(Sketcher.Constraint("Block", 24))
sketch5.addConstraint(Sketcher.Constraint("Block", 27))
sketch5.addConstraint(Sketcher.Constraint("Block", 28))
sketch5.addConstraint(Sketcher.Constraint("Block", 29))
sketch5.addConstraint(Sketcher.Constraint("Block", 31))
sketch5.addConstraint(Sketcher.Constraint("Block", 33))
sketch5.addConstraint(Sketcher.Constraint("Block", 35))
sketch5.addConstraint(Sketcher.Constraint("Block", 40))
sketch5.addConstraint(Sketcher.Constraint("Block", 43))
sketch5.addConstraint(Sketcher.Constraint("Block", 45))
sketch5.addConstraint(Sketcher.Constraint("Coincident", 0, 2, 1, 1))
sketch5.addConstraint(Sketcher.Constraint("Coincident", 1, 2, 2, 2))
sketch5.addConstraint(Sketcher.Constraint("Coincident", 2, 1, 3, 1))
sketch5.addConstraint(Sketcher.Constraint("Coincident", 3, 2, 4, 1))
sketch5.addConstraint(Sketcher.Constraint("Coincident", 4, 2, 5, 2))
sketch5.addConstraint(Sketcher.Constraint("Coincident", 5, 1, 6, 1))
sketch5.addConstraint(Sketcher.Constraint("Coincident", 6, 2, 7, 1))
sketch5.addConstraint(Sketcher.Constraint("Coincident", 7, 2, 8, 2))
sketch5.addConstraint(Sketcher.Constraint("Coincident", 10, 1, 11, 1))
sketch5.addConstraint(Sketcher.Constraint("Coincident", 11, 2, 12, 2))
sketch5.addConstraint(Sketcher.Constraint("Coincident", 12, 1, 13, 1))
sketch5.addConstraint(Sketcher.Constraint("Coincident", 13, 2, 0, 1))
sketch5.addConstraint(Sketcher.Constraint("Coincident", 14, 1, 15, 1))
sketch5.addConstraint(Sketcher.Constraint("Coincident", 15, 2, 16, 1))
sketch5.addConstraint(Sketcher.Constraint("Coincident", 16, 2, 17, 2))
sketch5.addConstraint(Sketcher.Constraint("Coincident", 17, 1, 18, 1))
sketch5.addConstraint(Sketcher.Constraint("Coincident", 18, 2, 19, 2))
sketch5.addConstraint(Sketcher.Constraint("Coincident", 19, 1, 20, 1))
sketch5.addConstraint(Sketcher.Constraint("Coincident", 20, 2, 21, 1))
sketch5.addConstraint(Sketcher.Constraint("Coincident", 21, 2, 22, 2))
sketch5.addConstraint(Sketcher.Constraint("Coincident", 24, 1, 25, 1))
sketch5.addConstraint(Sketcher.Constraint("Coincident", 25, 2, 26, 1))
sketch5.addConstraint(Sketcher.Constraint("Coincident", 26, 2, 27, 2))
sketch5.addConstraint(Sketcher.Constraint("Coincident", 29, 1, 30, 1))
sketch5.addConstraint(Sketcher.Constraint("Coincident", 30, 2, 31, 2))
sketch5.addConstraint(Sketcher.Constraint("Coincident", 31, 1, 32, 1))
sketch5.addConstraint(Sketcher.Constraint("Coincident", 32, 2, 33, 2))
sketch5.addConstraint(Sketcher.Constraint("Coincident", 33, 1, 34, 1))
sketch5.addConstraint(Sketcher.Constraint("Coincident", 34, 2, 35, 2))
sketch5.addConstraint(Sketcher.Constraint("Coincident", 35, 1, 36, 1))
sketch5.addConstraint(Sketcher.Constraint("Coincident", 36, 2, 37, 1))
sketch5.addConstraint(Sketcher.Constraint("Coincident", 37, 2, 38, 1))
sketch5.addConstraint(Sketcher.Constraint("Coincident", 38, 2, 39, 1))
sketch5.addConstraint(Sketcher.Constraint("Coincident", 39, 2, 40, 2))
sketch5.addConstraint(Sketcher.Constraint("Coincident", 40, 1, 41, 1))
sketch5.addConstraint(Sketcher.Constraint("Coincident", 41, 2, 42, 1))
sketch5.addConstraint(Sketcher.Constraint("Coincident", 42, 2, 43, 2))
sketch5.addConstraint(Sketcher.Constraint("Coincident", 43, 1, 44, 1))
sketch5.addConstraint(Sketcher.Constraint("Coincident", 44, 2, 45, 2))
sketch5.addConstraint(Sketcher.Constraint("Coincident", 45, 1, 46, 1))
sketch5.addConstraint(Sketcher.Constraint("Coincident", 46, 2, 14, 2))
sketch5.addConstraint(Sketcher.Constraint("Horizontal", 3))
sketch5.addConstraint(Sketcher.Constraint("Vertical", 25))
sketch5.addConstraint(Sketcher.Constraint("DistanceX", 4, 2, 0, 2, 3.101001))
sketch5.addConstraint(Sketcher.Constraint("DistanceY", 25, 2, 25, 1, 0.055189))
sketch5.addConstraint(Sketcher.Constraint("DistanceY", 0, 2, 6, 2, 0.2215))
sketch5.addConstraint(Sketcher.Constraint("DistanceX", 18, 2, 15, 2, 0.2215))
sketch5.addConstraint(Sketcher.Constraint("DistanceY", 41, 2, 37, 2, 0.780098))
sketch5.addConstraint(Sketcher.Constraint("DistanceY", 41, 2, 30, 2, 0.6645))
sketch5.addConstraint(Sketcher.Constraint("DistanceY", 42, 2, 36, 2, 0.780098))
sketch5.addConstraint(Sketcher.Constraint("DistanceY", 38, 2, 44, 2, 0.2215))
sketch5.addConstraint(Sketcher.Constraint("Distance", 0, 0.053391))
sketch5.addConstraint(Sketcher.Constraint("Distance", 16, 0.043211))
sketch5.addConstraint(Sketcher.Constraint("DistanceX", 3, 2, 3, 1, 2.265715))
sketch5.addConstraint(Sketcher.Constraint("DistanceX", -1, 1, 13, 2, 10.720161))
sketch5.addConstraint(Sketcher.Constraint("DistanceY", -1, 1, 13, 2, 30.62199))
sketch5.addConstraint(Sketcher.Constraint("DistanceX", -1, 1, 38, 2, 10.463609))
sketch5.addConstraint(Sketcher.Constraint("DistanceX", 6, 2, 3, 2, 0.503409))
sketch5.addConstraint(Sketcher.Constraint("DistanceY", 15, 2, 20, 2, 0.161091))
sketch5.addConstraint(Sketcher.Constraint("DistanceX", 20, 2, 11, 2, 0.935968))
sketch5.addConstraint(Sketcher.Constraint("DistanceX", 30, 2, 36, 2, 0.94641))
sketch5.addConstraint(Sketcher.Constraint("DistanceX", 32, 2, 37, 2, 0.21628))
sketch5.addConstraint(Sketcher.Constraint("DistanceX", 41, 2, 39, 2, 0.226721))
pocket3 = body.newObject("PartDesign::Pocket", "Pocket002")
pocket3.Profile = sketch5
pocket3.setExpression("Length", "Params.pocket3_length")
pocket3.Reversed = True

doc.recompute()
